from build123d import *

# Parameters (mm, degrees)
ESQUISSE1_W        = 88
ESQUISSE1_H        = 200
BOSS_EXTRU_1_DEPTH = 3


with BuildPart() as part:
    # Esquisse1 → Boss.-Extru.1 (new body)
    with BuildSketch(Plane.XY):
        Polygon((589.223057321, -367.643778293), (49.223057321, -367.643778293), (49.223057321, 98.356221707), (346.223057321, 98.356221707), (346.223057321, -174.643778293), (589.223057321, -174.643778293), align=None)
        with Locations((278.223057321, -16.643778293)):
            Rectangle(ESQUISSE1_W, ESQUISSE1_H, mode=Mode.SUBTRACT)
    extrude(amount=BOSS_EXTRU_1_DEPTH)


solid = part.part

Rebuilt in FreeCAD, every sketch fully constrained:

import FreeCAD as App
import Part
import Sketcher


def add_polygon(sketch, points):
    """Adds a closed chain of lines whose ends are joined by coincident constraints."""
    first, n = sketch.GeometryCount, len(points)
    for a, b in zip(points, points[1:] + points[:1]):
        sketch.addGeometry(Part.LineSegment(App.Vector(*a, 0), App.Vector(*b, 0)), False)
    for i in range(n):
        sketch.addConstraint(Sketcher.Constraint("Coincident", first + i, 2, first + (i + 1) % n, 1))

doc = App.newDocument("Part")
body = doc.addObject("PartDesign::Body", "Body")

sketch1 = doc.addObject("Sketcher::SketchObject", "Sketch")
body.addObject(sketch1)
sketch1.AttachmentSupport = (doc.XY_Plane, [""])
sketch1.MapMode = "FlatFace"
add_polygon(sketch1, [(49, -368), (589, -368), (589, -175), (346, -175), (346, 98), (49, 98)])
add_polygon(sketch1, [(234, -117), (234, 83), (322, 83), (322, -117)])
sketch1.addConstraint(Sketcher.Constraint("Horizontal", 0))
sketch1.addConstraint(Sketcher.Constraint("Vertical", 1))
sketch1.addConstraint(Sketcher.Constraint("Horizontal", 2))
sketch1.addConstraint(Sketcher.Constraint("Vertical", 3))
sketch1.addConstraint(Sketcher.Constraint("Horizontal", 4))
sketch1.addConstraint(Sketcher.Constraint("Vertical", 5))
sketch1.addConstraint(Sketcher.Constraint("Vertical", 6))
sketch1.addConstraint(Sketcher.Constraint("Horizontal", 7))
sketch1.addConstraint(Sketcher.Constraint("Vertical", 8))
sketch1.addConstraint(Sketcher.Constraint("Horizontal", 9))
sketch1.addConstraint(Sketcher.Constraint("DistanceX", 0, 1, 0, 2, 540.0))
sketch1.addConstraint(Sketcher.Constraint("DistanceX", 2, 2, 2, 1, 243.0))
sketch1.addConstraint(Sketcher.Constraint("DistanceX", 7, 1, 7, 2, 88.0))
sketch1.addConstraint(Sketcher.Constraint("DistanceY", 1, 1, 1, 2, 193.0))
sketch1.addConstraint(Sketcher.Constraint("DistanceY", 3, 1, 3, 2, 273.0))
sketch1.addConstraint(Sketcher.Constraint("DistanceY", 6, 1, 6, 2, 200.0))
sketch1.addConstraint(Sketcher.Constraint("DistanceX", 6, 2, 3, 2, 112.0))
sketch1.addConstraint(Sketcher.Constraint("DistanceY", 6, 2, 3, 2, 15.0))
sketch1.addConstraint(Sketcher.Constraint("DistanceY", 0, 2, -1, 1, 367.643778))
sketch1.addConstraint(Sketcher.Constraint("DistanceX", -1, 1, 0, 2, 589.223057))
pad1 = doc.addObject("PartDesign::Pad", "Pad")
body.addObject(pad1)
pad1.Profile = sketch1
pad1.Length = 3

doc.recompute()
